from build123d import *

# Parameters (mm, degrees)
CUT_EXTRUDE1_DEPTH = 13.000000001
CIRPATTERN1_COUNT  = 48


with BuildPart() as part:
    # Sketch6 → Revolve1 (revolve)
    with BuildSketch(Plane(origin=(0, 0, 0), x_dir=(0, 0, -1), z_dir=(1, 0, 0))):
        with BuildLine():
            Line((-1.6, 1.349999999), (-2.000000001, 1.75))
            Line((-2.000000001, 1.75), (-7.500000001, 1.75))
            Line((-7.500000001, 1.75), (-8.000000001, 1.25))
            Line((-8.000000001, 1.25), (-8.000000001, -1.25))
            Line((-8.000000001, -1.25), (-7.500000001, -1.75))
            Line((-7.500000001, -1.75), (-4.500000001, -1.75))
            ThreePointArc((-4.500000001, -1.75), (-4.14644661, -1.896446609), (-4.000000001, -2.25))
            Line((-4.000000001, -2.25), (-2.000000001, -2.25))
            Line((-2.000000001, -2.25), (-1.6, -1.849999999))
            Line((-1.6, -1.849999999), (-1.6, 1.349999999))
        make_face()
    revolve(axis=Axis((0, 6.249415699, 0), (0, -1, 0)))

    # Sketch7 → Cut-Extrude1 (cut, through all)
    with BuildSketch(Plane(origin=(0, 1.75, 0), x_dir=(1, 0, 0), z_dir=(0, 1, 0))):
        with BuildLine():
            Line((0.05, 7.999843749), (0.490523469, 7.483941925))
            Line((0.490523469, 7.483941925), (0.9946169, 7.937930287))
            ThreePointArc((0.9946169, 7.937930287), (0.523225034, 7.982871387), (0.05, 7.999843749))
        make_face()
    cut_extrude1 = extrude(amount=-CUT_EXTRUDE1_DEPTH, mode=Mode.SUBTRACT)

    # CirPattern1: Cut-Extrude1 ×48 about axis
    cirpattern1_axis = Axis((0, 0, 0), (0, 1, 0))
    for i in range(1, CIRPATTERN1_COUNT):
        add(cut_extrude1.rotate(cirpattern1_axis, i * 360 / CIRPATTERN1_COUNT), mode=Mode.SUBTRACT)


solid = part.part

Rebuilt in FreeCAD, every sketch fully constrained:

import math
import FreeCAD as App
import Part
import Sketcher
from FreeCAD import Vector

doc = App.newDocument("Part")
params = doc.addObject("Spreadsheet::Sheet", "Params")
for row, (alias, value) in enumerate([
    ("sketch1_radius", "0.5 mm"),
    ("sketch1_height", "3 mm"),
    ("sketch1_height2", "2 mm"),
    ("sketch1_width", "2.5 mm"),
    ("sketch1_width2", "3.2 mm"),
    ("revolution_angle", "360 deg"),
    ("sketch2_radius", "8 mm"),
], start=1):
    params.set(f"A{row}", alias)
    params.set(f"B{row}", "=" + value)
    params.setAlias(f"B{row}", alias)

body = doc.addObject("PartDesign::Body", "Body")

# Sketch on YZ plane
sketch1 = body.newObject("Sketcher::SketchObject", "Sketch")
sketch1.AttachmentSupport = (doc.getObject("YZ_Plane"), [""])
sketch1.MapMode = "FlatFace"
sketch1.addGeometry(Part.LineSegment(Vector(1.35, 1.6, 0), Vector(1.75, 2, 0)), False)
sketch1.addGeometry(Part.LineSegment(Vector(1.75, 2, 0), Vector(1.75, 7.5, 0)), False)
sketch1.addGeometry(Part.LineSegment(Vector(1.75, 7.5, 0), Vector(1.25, 8, 0)), False)
sketch1.addGeometry(Part.LineSegment(Vector(1.25, 8, 0), Vector(-1.25, 8, 0)), False)
sketch1.addGeometry(Part.LineSegment(Vector(-1.25, 8, 0), Vector(-1.75, 7.5, 0)), False)
sketch1.addGeometry(Part.LineSegment(Vector(-1.75, 7.5, 0), Vector(-1.75, 4.5, 0)), False)
sketch1.addGeometry(Part.ArcOfCircle(Part.Circle(Vector(-2.25, 4.5, 0), Vector(0, 0, 1), 0.5), math.radians(-90), math.radians(0)), False)
sketch1.addGeometry(Part.LineSegment(Vector(-2.25, 4, 0), Vector(-2.25, 2, 0)), False)
sketch1.addGeometry(Part.LineSegment(Vector(-2.25, 2, 0), Vector(-1.85, 1.6, 0)), False)
sketch1.addGeometry(Part.LineSegment(Vector(-1.85, 1.6, 0), Vector(1.35, 1.6, 0)), False)
sketch1.addConstraint(Sketcher.Constraint("Coincident", 0, 2, 1, 1))
sketch1.addConstraint(Sketcher.Constraint("Coincident", 1, 2, 2, 1))
sketch1.addConstraint(Sketcher.Constraint("Coincident", 2, 2, 3, 1))
sketch1.addConstraint(Sketcher.Constraint("Coincident", 3, 2, 4, 1))
sketch1.addConstraint(Sketcher.Constraint("Coincident", 4, 2, 5, 1))
sketch1.addConstraint(Sketcher.Constraint("Tangent", 5, 2, 6, 2))
sketch1.addConstraint(Sketcher.Constraint("Coincident", 6, 1, 7, 1))
sketch1.addConstraint(Sketcher.Constraint("Coincident", 7, 2, 8, 1))
sketch1.addConstraint(Sketcher.Constraint("Coincident", 8, 2, 9, 1))
sketch1.addConstraint(Sketcher.Constraint("Coincident", 9, 2, 0, 1))
sketch1.addConstraint(Sketcher.Constraint("Vertical", 1))
sketch1.addConstraint(Sketcher.Constraint("Horizontal", 3))
sketch1.addConstraint(Sketcher.Constraint("Vertical", 5))
sketch1.addConstraint(Sketcher.Constraint("Vertical", 7))
sketch1.addConstraint(Sketcher.Constraint("Horizontal", 9))
sketch1.addConstraint(Sketcher.Constraint("Symmetric", 1, 2, 4, 2, -2))
sketch1.addConstraint(Sketcher.Constraint("Perpendicular", 0, 2))
sketch1.addConstraint(Sketcher.Constraint("Perpendicular", 2, 4))
sketch1.addConstraint(Sketcher.Constraint("Perpendicular", 4, 8))
sketch1.addConstraint(Sketcher.Constraint("Horizontal", 0, 2, 7, 2))
sketch1.addConstraint(Sketcher.Constraint("Equal", 2, 4))
sketch1.addConstraint(Sketcher.Constraint("Radius", 6, 0.5))
sketch1.addConstraint(Sketcher.Constraint("DistanceY", 5, 2, 5, 1, 3.0))
sketch1.addConstraint(Sketcher.Constraint("DistanceY", 7, 2, 7, 1, 2.0))
sketch1.addConstraint(Sketcher.Constraint("DistanceX", 3, 2, 3, 1, 2.5))
sketch1.addConstraint(Sketcher.Constraint("DistanceX", 9, 1, 9, 2, 3.2))
sketch1.addConstraint(Sketcher.Constraint("DistanceY", -1, 1, 0, 2, 2.0))
sketch1.addConstraint(Sketcher.Constraint("DistanceY", -1, 1, 2, 2, 8.0))
sketch1.addConstraint(Sketcher.Constraint("DistanceX", 6, 1, 3, 2, 1.0))
sketch1.setExpression("Constraints[21]", "Params.sketch1_radius")
sketch1.setExpression("Constraints[22]", "Params.sketch1_height")
sketch1.setExpression("Constraints[23]", "Params.sketch1_height2")
sketch1.setExpression("Constraints[24]", "Params.sketch1_width")
sketch1.setExpression("Constraints[25]", "Params.sketch1_width2")
revolution = body.newObject("PartDesign::Revolution", "Revolution")
revolution.Profile = sketch1
revolution.ReferenceAxis = (sketch1, ["H_Axis"])
revolution.setExpression("Angle", "Params.revolution_angle")

# Sketch on XZ plane
sketch2 = body.newObject("Sketcher::SketchObject", "Sketch001")
sketch2.AttachmentSupport = (doc.getObject("XZ_Plane"), [""])
sketch2.MapMode = "FlatFace"
sketch2.AttachmentOffset = App.Placement(Vector(0, 0, -1.75), App.Rotation())
sketch2.addGeometry(Part.LineSegment(Vector(0.05, -7.999844, 0), Vector(0.490523, -7.483942, 0)), False)
sketch2.addGeometry(Part.LineSegment(Vector(0.490523, -7.483942, 0), Vector(0.994617, -7.93793, 0)), False)
sketch2.addGeometry(Part.ArcOfCircle(Part.Circle(Vector(0, 0, 0), Vector(0, 0, 1), 8), math.radians(-89.641899), math.radians(-82.858101)), False)
sketch2.addConstraint(Sketcher.Constraint("Coincident", 0, 2, 1, 1))
sketch2.addConstraint(Sketcher.Constraint("Coincident", 1, 2, 2, 2))
sketch2.addConstraint(Sketcher.Constraint("Coincident", 2, 1, 0, 1))
sketch2.addConstraint(Sketcher.Constraint("Coincident", 2, 3, -1, 1))
sketch2.addConstraint(Sketcher.Constraint("Equal", 0, 1))
sketch2.addConstraint(Sketcher.Constraint("Radius", 2, 8.0))
sketch2.addConstraint(Sketcher.Constraint("DistanceX", -1, 1, 2, 1, 0.05))
sketch2.addConstraint(Sketcher.Constraint("DistanceY", 2, 1, 0, 2, 0.515902))
sketch2.addConstraint(Sketcher.Constraint("Distance", 0, 0.678392))
sketch2.setExpression("Constraints[5]", "Params.sketch2_radius")
pocket1 = body.newObject("PartDesign::Pocket", "Pocket")
pocket1.Profile = sketch2
pocket1.Type = "ThroughAll"
pocket1.Reversed = True
doc.recompute()

polarpattern = body.newObject("PartDesign::PolarPattern", "PolarPattern")
polarpattern.Originals = [pocket1]
polarpattern.Axis = (doc.getObject("Y_Axis"), [""])
polarpattern.Angle = 360
polarpattern.Occurrences = 48
body.Tip = polarpattern

doc.recompute()
